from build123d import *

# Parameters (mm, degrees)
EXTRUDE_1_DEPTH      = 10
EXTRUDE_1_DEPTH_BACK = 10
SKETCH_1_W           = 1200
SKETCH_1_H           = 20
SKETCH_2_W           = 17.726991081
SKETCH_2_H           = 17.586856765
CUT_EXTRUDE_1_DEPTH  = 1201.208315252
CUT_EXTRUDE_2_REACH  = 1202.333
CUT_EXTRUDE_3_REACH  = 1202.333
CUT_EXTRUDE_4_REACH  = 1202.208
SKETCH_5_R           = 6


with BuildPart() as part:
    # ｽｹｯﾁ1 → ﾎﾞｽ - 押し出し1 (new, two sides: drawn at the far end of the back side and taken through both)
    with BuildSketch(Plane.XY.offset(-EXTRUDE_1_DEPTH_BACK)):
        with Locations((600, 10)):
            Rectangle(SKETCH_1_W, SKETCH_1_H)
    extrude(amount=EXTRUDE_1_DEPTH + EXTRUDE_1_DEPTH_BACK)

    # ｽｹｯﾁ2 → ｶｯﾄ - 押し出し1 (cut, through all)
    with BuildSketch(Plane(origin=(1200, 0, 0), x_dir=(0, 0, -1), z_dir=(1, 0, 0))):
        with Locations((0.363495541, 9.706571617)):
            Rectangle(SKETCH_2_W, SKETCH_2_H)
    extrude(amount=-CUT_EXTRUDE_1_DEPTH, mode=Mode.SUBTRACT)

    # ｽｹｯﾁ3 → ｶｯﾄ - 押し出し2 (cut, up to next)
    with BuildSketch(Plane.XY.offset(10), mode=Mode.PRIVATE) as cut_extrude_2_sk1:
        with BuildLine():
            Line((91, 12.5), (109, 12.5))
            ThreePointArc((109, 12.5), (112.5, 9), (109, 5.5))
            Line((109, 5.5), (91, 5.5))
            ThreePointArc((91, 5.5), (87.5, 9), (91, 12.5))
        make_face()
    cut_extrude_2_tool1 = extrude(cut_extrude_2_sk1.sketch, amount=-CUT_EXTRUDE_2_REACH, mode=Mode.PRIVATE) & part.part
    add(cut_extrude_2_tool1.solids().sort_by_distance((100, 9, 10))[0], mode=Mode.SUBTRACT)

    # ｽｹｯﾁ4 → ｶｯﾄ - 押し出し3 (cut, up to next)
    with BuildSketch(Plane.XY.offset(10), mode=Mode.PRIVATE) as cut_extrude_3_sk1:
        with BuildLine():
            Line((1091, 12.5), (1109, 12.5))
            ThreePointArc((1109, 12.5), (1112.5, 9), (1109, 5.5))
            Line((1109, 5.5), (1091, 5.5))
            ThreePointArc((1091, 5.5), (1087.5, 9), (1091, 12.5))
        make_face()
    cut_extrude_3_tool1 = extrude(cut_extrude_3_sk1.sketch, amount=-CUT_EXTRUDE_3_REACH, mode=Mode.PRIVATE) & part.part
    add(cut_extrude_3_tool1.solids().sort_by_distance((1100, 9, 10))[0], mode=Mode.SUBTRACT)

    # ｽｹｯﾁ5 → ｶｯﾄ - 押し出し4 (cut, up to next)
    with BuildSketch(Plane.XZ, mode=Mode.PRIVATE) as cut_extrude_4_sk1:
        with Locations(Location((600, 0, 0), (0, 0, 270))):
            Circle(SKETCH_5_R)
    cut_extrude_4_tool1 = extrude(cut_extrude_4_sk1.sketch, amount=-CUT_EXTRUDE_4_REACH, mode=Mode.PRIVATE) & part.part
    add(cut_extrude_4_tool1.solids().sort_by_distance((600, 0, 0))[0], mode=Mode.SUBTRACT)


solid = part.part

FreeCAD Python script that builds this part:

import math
import FreeCAD as App
import Part
import Sketcher

V = App.Vector
Q = App.Units.Quantity


def add_polygon(sketch, points):
    """Adds a closed chain of lines whose ends are joined by coincident constraints."""
    first, n = sketch.GeometryCount, len(points)
    for a, b in zip(points, points[1:] + points[:1]):
        sketch.addGeometry(Part.LineSegment(App.Vector(*a, 0), App.Vector(*b, 0)), False)
    for i in range(n):
        sketch.addConstraint(Sketcher.Constraint("Coincident", first + i, 2, first + (i + 1) % n, 1))

doc = App.newDocument("Part")
params = doc.addObject("Spreadsheet::Sheet", "Params")
for row, (alias, value) in enumerate([
    ("sketch1_width", "1200 mm"),
    ("sketch1_height", "20 mm"),
    ("pad1_length", "10 mm"),
    ("pad1_length2", "10 mm"),
    ("sketch3_radius", "3.5 mm"),
    ("sketch3_width", "18 mm"),
    ("sketch4_radius", "3.5 mm"),
    ("sketch4_width", "18 mm"),
    ("sketch5_diameter", "12 mm"),
], start=1):
    params.set(f"A{row}", alias)
    params.set(f"B{row}", "=" + value)
    params.setAlias(f"B{row}", alias)

body = doc.addObject("PartDesign::Body", "Body")

sketch1 = body.newObject("Sketcher::SketchObject", "Sketch")
sketch1.AttachmentSupport = (doc.getObject("XY_Plane"), [""])
sketch1.MapMode = "FlatFace"
add_polygon(sketch1, [(0, 20), (0, 0), (1200, 0), (1200, 20)])
sketch1.addConstraint([
    Sketcher.Constraint("Vertical", 0),
    Sketcher.Constraint("Horizontal", 1),
    Sketcher.Constraint("Vertical", 2),
    Sketcher.Constraint("Horizontal", 3),
    Sketcher.Constraint("Coincident", 0, 2, -1, 1),
    Sketcher.Constraint("DistanceX", 1, 1, 1, 2, Q("1200 mm")),
    Sketcher.Constraint("DistanceY", 0, 2, 0, 1, Q("20 mm")),
])
sketch1.setExpression("Constraints[9]", "Params.sketch1_width")
sketch1.setExpression("Constraints[10]", "Params.sketch1_height")
pad1 = body.newObject("PartDesign::Pad", "Pad")
pad1.Profile = sketch1
pad1.Type = "TwoLengths"
pad1.setExpression("Length", "Params.pad1_length")
pad1.setExpression("Length2", "Params.pad1_length2")

sketch2 = body.newObject("Sketcher::SketchObject", "Sketch001")
sketch2.AttachmentSupport = (doc.getObject("YZ_Plane"), [""])
sketch2.MapMode = "FlatFace"
sketch2.AttachmentOffset = App.Placement(V(0, 0, 1200), App.Rotation())
add_polygon(sketch2, [(18, 8), (1, 8), (1, -9), (18, -9)])
sketch2.addConstraint([
    Sketcher.Constraint("Horizontal", 0),
    Sketcher.Constraint("Vertical", 1),
    Sketcher.Constraint("Horizontal", 2),
    Sketcher.Constraint("Vertical", 3),
    Sketcher.Constraint("DistanceY", -1, 1, 0, 2, Q("8.5 mm")),
    Sketcher.Constraint("DistanceX", -1, 1, 2, 2, Q("18.5 mm")),
    Sketcher.Constraint("DistanceY", 1, 2, 1, 1, Q("17.726991 mm")),
    Sketcher.Constraint("DistanceX", 0, 2, 0, 1, Q("17.586857 mm")),
])
pocket1 = body.newObject("PartDesign::Pocket", "Pocket")
pocket1.Profile = sketch2
pocket1.Type = "ThroughAll"

sketch3 = body.newObject("Sketcher::SketchObject", "Sketch002")
sketch3.AttachmentSupport = (doc.getObject("XY_Plane"), [""])
sketch3.MapMode = "FlatFace"
sketch3.AttachmentOffset = App.Placement(V(0, 0, 10), App.Rotation())
sketch3.addGeometry([
    Part.LineSegment(V(109, 12.5, 0), V(91, 12.5, 0)),
    Part.ArcOfCircle(Part.Circle(V(91, 9, 0), V(0, 0, 1), 3.5), math.radians(90), math.radians(270)),
    Part.LineSegment(V(91, 5.5, 0), V(109, 5.5, 0)),
    Part.ArcOfCircle(Part.Circle(V(109, 9, 0), V(0, 0, 1), 3.5), math.radians(-90), math.radians(90)),
], False)
sketch3.addConstraint([
    Sketcher.Constraint("Tangent", 0, 2, 1, 1),
    Sketcher.Constraint("Tangent", 1, 2, 2, 1),
    Sketcher.Constraint("Tangent", 2, 2, 3, 1),
    Sketcher.Constraint("Tangent", 3, 2, 0, 1),
    Sketcher.Constraint("Horizontal", 0),
    Sketcher.Constraint("Horizontal", 2),
    Sketcher.Constraint("Radius", 1, Q("3.5 mm")),
    Sketcher.Constraint("DistanceX", 0, 2, 0, 1, Q("18 mm")),
    Sketcher.Constraint("DistanceX", -1, 1, 1, 3, Q("91 mm")),
    Sketcher.Constraint("DistanceY", -1, 1, 1, 3, Q("9 mm")),
])
sketch3.setExpression("Constraints[6]", "Params.sketch3_radius")
sketch3.setExpression("Constraints[7]", "Params.sketch3_width")
pocket2 = body.newObject("PartDesign::Pocket", "Pocket001")
pocket2.Profile = sketch3
pocket2.Type = "UpToFirst"

sketch4 = body.newObject("Sketcher::SketchObject", "Sketch003")
sketch4.AttachmentSupport = (doc.getObject("XY_Plane"), [""])
sketch4.MapMode = "FlatFace"
sketch4.AttachmentOffset = App.Placement(V(0, 0, 10), App.Rotation())
sketch4.addGeometry([
    Part.LineSegment(V(1109, 12.5, 0), V(1091, 12.5, 0)),
    Part.ArcOfCircle(Part.Circle(V(1091, 9, 0), V(0, 0, 1), 3.5), math.radians(90), math.radians(270)),
    Part.LineSegment(V(1091, 5.5, 0), V(1109, 5.5, 0)),
    Part.ArcOfCircle(Part.Circle(V(1109, 9, 0), V(0, 0, 1), 3.5), math.radians(-90), math.radians(90)),
], False)
sketch4.addConstraint([
    Sketcher.Constraint("Tangent", 0, 2, 1, 1),
    Sketcher.Constraint("Tangent", 1, 2, 2, 1),
    Sketcher.Constraint("Tangent", 2, 2, 3, 1),
    Sketcher.Constraint("Tangent", 3, 2, 0, 1),
    Sketcher.Constraint("Horizontal", 0),
    Sketcher.Constraint("Horizontal", 2),
    Sketcher.Constraint("Radius", 1, Q("3.5 mm")),
    Sketcher.Constraint("DistanceX", 0, 2, 0, 1, Q("18 mm")),
    Sketcher.Constraint("DistanceX", -1, 1, 1, 3, Q("1091 mm")),
    Sketcher.Constraint("DistanceY", -1, 1, 1, 3, Q("9 mm")),
])
sketch4.setExpression("Constraints[6]", "Params.sketch4_radius")
sketch4.setExpression("Constraints[7]", "Params.sketch4_width")
pocket3 = body.newObject("PartDesign::Pocket", "Pocket002")
pocket3.Profile = sketch4
pocket3.Type = "UpToFirst"

sketch5 = body.newObject("Sketcher::SketchObject", "Sketch004")
sketch5.AttachmentSupport = (doc.getObject("XZ_Plane"), [""])
sketch5.MapMode = "FlatFace"
sketch5.addGeometry(Part.Circle(V(600, 0, 0), V(0, 0, 1), 6), False)
sketch5.addConstraint([
    Sketcher.Constraint("PointOnObject", 0, 3, -1),
    Sketcher.Constraint("Diameter", 0, Q("12 mm")),
    Sketcher.Constraint("DistanceX", -1, 1, 0, 3, Q("600 mm")),
])
sketch5.setExpression("Constraints[1]", "Params.sketch5_diameter")
pocket4 = body.newObject("PartDesign::Pocket", "Pocket003")
pocket4.Profile = sketch5
pocket4.Type = "UpToFirst"

doc.recompute()
